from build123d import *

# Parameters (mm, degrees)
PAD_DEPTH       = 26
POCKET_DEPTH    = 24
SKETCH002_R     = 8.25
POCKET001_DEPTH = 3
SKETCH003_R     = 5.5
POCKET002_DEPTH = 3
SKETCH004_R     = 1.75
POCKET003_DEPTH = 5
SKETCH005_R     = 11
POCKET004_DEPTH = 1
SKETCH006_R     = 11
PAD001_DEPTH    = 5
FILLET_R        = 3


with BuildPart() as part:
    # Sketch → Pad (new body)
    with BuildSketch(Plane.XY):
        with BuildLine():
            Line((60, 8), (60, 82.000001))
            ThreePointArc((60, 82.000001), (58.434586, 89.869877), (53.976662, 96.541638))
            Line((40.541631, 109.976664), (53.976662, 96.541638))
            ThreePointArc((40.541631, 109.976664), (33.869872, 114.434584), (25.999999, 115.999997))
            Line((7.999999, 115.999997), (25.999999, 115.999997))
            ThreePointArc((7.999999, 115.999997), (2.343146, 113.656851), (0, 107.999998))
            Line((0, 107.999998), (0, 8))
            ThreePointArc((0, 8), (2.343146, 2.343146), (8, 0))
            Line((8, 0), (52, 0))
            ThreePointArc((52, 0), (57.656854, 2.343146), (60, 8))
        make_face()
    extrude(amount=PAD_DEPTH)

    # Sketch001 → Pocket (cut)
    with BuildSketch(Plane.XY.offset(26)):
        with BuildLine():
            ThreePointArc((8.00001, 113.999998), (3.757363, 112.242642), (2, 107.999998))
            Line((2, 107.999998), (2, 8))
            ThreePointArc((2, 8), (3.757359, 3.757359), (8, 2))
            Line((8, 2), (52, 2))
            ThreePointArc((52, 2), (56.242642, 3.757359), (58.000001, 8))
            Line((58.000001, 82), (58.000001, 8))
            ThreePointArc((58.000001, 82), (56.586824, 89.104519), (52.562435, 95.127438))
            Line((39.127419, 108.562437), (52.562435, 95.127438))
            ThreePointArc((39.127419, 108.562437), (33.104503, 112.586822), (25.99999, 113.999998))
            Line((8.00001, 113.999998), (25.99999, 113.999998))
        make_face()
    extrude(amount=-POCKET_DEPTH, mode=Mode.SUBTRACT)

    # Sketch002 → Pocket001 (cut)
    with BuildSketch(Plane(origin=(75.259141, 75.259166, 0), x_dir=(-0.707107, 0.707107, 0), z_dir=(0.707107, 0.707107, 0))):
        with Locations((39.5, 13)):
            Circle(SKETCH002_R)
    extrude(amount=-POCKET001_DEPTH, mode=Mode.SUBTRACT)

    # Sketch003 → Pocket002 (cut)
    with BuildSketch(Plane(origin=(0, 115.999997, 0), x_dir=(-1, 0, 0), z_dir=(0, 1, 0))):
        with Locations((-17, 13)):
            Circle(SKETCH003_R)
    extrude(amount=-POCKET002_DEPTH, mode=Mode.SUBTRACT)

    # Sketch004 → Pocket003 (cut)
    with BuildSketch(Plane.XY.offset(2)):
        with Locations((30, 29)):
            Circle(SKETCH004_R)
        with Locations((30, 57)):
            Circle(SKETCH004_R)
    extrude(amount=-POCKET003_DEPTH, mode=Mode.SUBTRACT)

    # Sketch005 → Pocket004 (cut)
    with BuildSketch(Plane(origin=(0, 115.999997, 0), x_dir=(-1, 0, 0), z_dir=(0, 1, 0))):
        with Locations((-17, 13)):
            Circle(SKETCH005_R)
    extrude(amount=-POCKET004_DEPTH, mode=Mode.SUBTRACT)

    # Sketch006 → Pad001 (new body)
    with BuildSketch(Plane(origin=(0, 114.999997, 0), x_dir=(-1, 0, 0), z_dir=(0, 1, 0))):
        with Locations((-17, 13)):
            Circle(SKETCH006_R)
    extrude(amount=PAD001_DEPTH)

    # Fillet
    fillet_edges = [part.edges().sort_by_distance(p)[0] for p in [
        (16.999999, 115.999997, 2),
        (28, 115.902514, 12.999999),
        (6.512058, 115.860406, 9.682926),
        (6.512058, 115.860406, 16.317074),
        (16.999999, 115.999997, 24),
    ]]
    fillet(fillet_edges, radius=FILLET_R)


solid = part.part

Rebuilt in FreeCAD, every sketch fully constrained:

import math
import FreeCAD as App
import Part
import Sketcher
from FreeCAD import Vector
Q = App.Units.Quantity


def edges_at(feature, points):
    """Names of the edges that pass closest to the given points."""
    edges = feature.Shape.Edges
    near = lambda p: min(range(len(edges)), key=lambda i: edges[i].distToShape(Part.Vertex(*p))[0])
    return sorted({f"Edge{near(p) + 1}" for p in points})

doc = App.newDocument("Part")
body = doc.addObject("PartDesign::Body", "Body")

# Sketch on XY plane
sketch1 = body.newObject("Sketcher::SketchObject", "Sketch")
sketch1.AttachmentSupport = (doc.getObject("XY_Plane"), [""])
sketch1.MapMode = "FlatFace"
sketch1.addGeometry(Part.LineSegment(Vector(60, 8, 0), Vector(60, 82.000001, 0)), False)
sketch1.addGeometry(Part.ArcOfCircle(Part.Circle(Vector(39.435011, 82.000003, 0), Vector(0, 0, 1), 20.564989), math.radians(-0.000005), math.radians(44.999969)), False)
sketch1.addGeometry(Part.LineSegment(Vector(53.976662, 96.541638, 0), Vector(40.541631, 109.976664, 0)), False)
sketch1.addGeometry(Part.ArcOfCircle(Part.Circle(Vector(26, 95.435005, 0), Vector(0, 0, 1), 20.564992), math.radians(45.000054), math.radians(90.000001)), False)
sketch1.addGeometry(Part.LineSegment(Vector(25.999999, 115.999997, 0), Vector(7.999999, 115.999997, 0)), False)
sketch1.addGeometry(Part.ArcOfCircle(Part.Circle(Vector(8.000001, 107.999996, 0), Vector(0, 0, 1), 8.000001), math.radians(90.000013), math.radians(179.999987)), False)
sketch1.addGeometry(Part.LineSegment(Vector(0, 107.999998, 0), Vector(0, 8, 0)), False)
sketch1.addGeometry(Part.ArcOfCircle(Part.Circle(Vector(8.000001, 8.000001, 0), Vector(0, 0, 1), 8.000001), math.radians(-179.999994), math.radians(-90.000006)), False)
sketch1.addGeometry(Part.LineSegment(Vector(8, 0, 0), Vector(52, 0, 0)), False)
sketch1.addGeometry(Part.ArcOfCircle(Part.Circle(Vector(51.999999, 8.000001, 0), Vector(0, 0, 1), 8.000001), math.radians(-89.999994), math.radians(-0.000006)), False)
sketch1.addConstraint(Sketcher.Constraint("Coincident", 0, 2, 1, 1))
sketch1.addConstraint(Sketcher.Constraint("Coincident", 1, 2, 2, 1))
sketch1.addConstraint(Sketcher.Constraint("Coincident", 2, 2, 3, 1))
sketch1.addConstraint(Sketcher.Constraint("Coincident", 3, 2, 4, 1))
sketch1.addConstraint(Sketcher.Constraint("Coincident", 4, 2, 5, 1))
sketch1.addConstraint(Sketcher.Constraint("Coincident", 5, 2, 6, 1))
sketch1.addConstraint(Sketcher.Constraint("Coincident", 6, 2, 7, 1))
sketch1.addConstraint(Sketcher.Constraint("Coincident", 7, 2, 8, 1))
sketch1.addConstraint(Sketcher.Constraint("Coincident", 8, 2, 9, 1))
sketch1.addConstraint(Sketcher.Constraint("Coincident", 9, 2, 0, 1))
sketch1.addConstraint(Sketcher.Constraint("Vertical", 0))
sketch1.addConstraint(Sketcher.Constraint("Horizontal", 4))
sketch1.addConstraint(Sketcher.Constraint("Vertical", 6))
sketch1.addConstraint(Sketcher.Constraint("Horizontal", 8))
sketch1.addConstraint(Sketcher.Constraint("PointOnObject", 5, 2, -2))
sketch1.addConstraint(Sketcher.Constraint("PointOnObject", 7, 2, -1))
sketch1.addConstraint(Sketcher.Constraint("Radius", 5, Q("8.000001 mm")))
sketch1.addConstraint(Sketcher.Constraint("Radius", 7, Q("8.000001 mm")))
sketch1.addConstraint(Sketcher.Constraint("Radius", 9, Q("8.000001 mm")))
sketch1.addConstraint(Sketcher.Constraint("DistanceX", 4, 2, 4, 1, Q("18 mm")))
sketch1.addConstraint(Sketcher.Constraint("DistanceX", 8, 1, 8, 2, Q("44 mm")))
sketch1.addConstraint(Sketcher.Constraint("DistanceY", 0, 1, 0, 2, Q("74.000001 mm")))
sketch1.addConstraint(Sketcher.Constraint("DistanceY", 6, 2, 6, 1, Q("99.999998 mm")))
sketch1.addConstraint(Sketcher.Constraint("Distance", 2, Q("19 mm")))
sketch1.addConstraint(Sketcher.Constraint("DistanceX", -1, 1, 3, 3, Q("26 mm")))
sketch1.addConstraint(Sketcher.Constraint("DistanceX", -1, 1, 9, 3, Q("51.999999 mm")))
sketch1.addConstraint(Sketcher.Constraint("DistanceY", -1, 1, 0, 2, Q("82.000001 mm")))
sketch1.addConstraint(Sketcher.Constraint("DistanceX", -1, 1, 3, 2, Q("25.999999 mm")))
sketch1.addConstraint(Sketcher.Constraint("DistanceY", -1, 1, 5, 2, Q("107.999998 mm")))
sketch1.addConstraint(Sketcher.Constraint("DistanceX", -1, 1, 7, 2, Q("8 mm")))
sketch1.addConstraint(Sketcher.Constraint("DistanceY", 7, 3, 1, 3, Q("74.000002 mm")))
sketch1.addConstraint(Sketcher.Constraint("DistanceY", 5, 2, 4, 2, Q("7.999999 mm")))
sketch1.addConstraint(Sketcher.Constraint("Radius", 1, Q("20.564989 mm")))
sketch1.addConstraint(Sketcher.Constraint("Radius", 3, Q("20.564992 mm")))
sketch1.addConstraint(Sketcher.Constraint("DistanceY", -1, 1, 1, 2, Q("96.541638 mm")))
pad1 = body.newObject("PartDesign::Pad", "Pad")
pad1.Profile = sketch1
pad1.Length = 26

# Sketch on XY plane
sketch2 = body.newObject("Sketcher::SketchObject", "Sketch001")
sketch2.AttachmentSupport = (doc.getObject("XY_Plane"), [""])
sketch2.MapMode = "FlatFace"
sketch2.AttachmentOffset = App.Placement(Vector(0, 0, 26), App.Rotation())
sketch2.addGeometry(Part.ArcOfCircle(Part.Circle(Vector(8.000001, 107.999997, 0), Vector(0, 0, 1), 6.000001), math.radians(89.999911), math.radians(179.999994)), False)
sketch2.addGeometry(Part.LineSegment(Vector(2, 107.999998, 0), Vector(2, 8, 0)), False)
sketch2.addGeometry(Part.ArcOfCircle(Part.Circle(Vector(7.999999, 7.999999, 0), Vector(0, 0, 1), 5.999999), math.radians(179.99999), math.radians(270.00001)), False)
sketch2.addGeometry(Part.LineSegment(Vector(8, 2, 0), Vector(52, 2, 0)), False)
sketch2.addGeometry(Part.ArcOfCircle(Part.Circle(Vector(52.000002, 7.999999, 0), Vector(0, 0, 1), 5.999999), math.radians(-90.00002), math.radians(0.00001)), False)
sketch2.addGeometry(Part.LineSegment(Vector(58.000001, 8, 0), Vector(58.000001, 82, 0)), False)
sketch2.addGeometry(Part.ArcOfCircle(Part.Circle(Vector(39.435013, 82.000002, 0), Vector(0, 0, 1), 18.564988), math.radians(-0.000007), math.radians(45.00003)), False)
sketch2.addGeometry(Part.LineSegment(Vector(52.562435, 95.127438, 0), Vector(39.127419, 108.562437, 0)), False)
sketch2.addGeometry(Part.ArcOfCircle(Part.Circle(Vector(25.999989, 95.435012, 0), Vector(0, 0, 1), 18.564986), math.radians(44.999989), math.radians(89.999997)), False)
sketch2.addGeometry(Part.LineSegment(Vector(25.99999, 113.999998, 0), Vector(8.00001, 113.999998, 0)), False)
sketch2.addConstraint(Sketcher.Constraint("Coincident", 0, 2, 1, 1))
sketch2.addConstraint(Sketcher.Constraint("Coincident", 1, 2, 2, 1))
sketch2.addConstraint(Sketcher.Constraint("Coincident", 2, 2, 3, 1))
sketch2.addConstraint(Sketcher.Constraint("Coincident", 3, 2, 4, 1))
sketch2.addConstraint(Sketcher.Constraint("Coincident", 4, 2, 5, 1))
sketch2.addConstraint(Sketcher.Constraint("Coincident", 5, 2, 6, 1))
sketch2.addConstraint(Sketcher.Constraint("Coincident", 6, 2, 7, 1))
sketch2.addConstraint(Sketcher.Constraint("Coincident", 7, 2, 8, 1))
sketch2.addConstraint(Sketcher.Constraint("Coincident", 8, 2, 9, 1))
sketch2.addConstraint(Sketcher.Constraint("Coincident", 9, 2, 0, 1))
sketch2.addConstraint(Sketcher.Constraint("Vertical", 1))
sketch2.addConstraint(Sketcher.Constraint("Horizontal", 3))
sketch2.addConstraint(Sketcher.Constraint("Vertical", 5))
sketch2.addConstraint(Sketcher.Constraint("Horizontal", 9))
sketch2.addConstraint(Sketcher.Constraint("Radius", 0, Q("6.000001 mm")))
sketch2.addConstraint(Sketcher.Constraint("Radius", 2, Q("5.999999 mm")))
sketch2.addConstraint(Sketcher.Constraint("Radius", 4, Q("5.999999 mm")))
sketch2.addConstraint(Sketcher.Constraint("DistanceX", 3, 1, 3, 2, Q("44 mm")))
sketch2.addConstraint(Sketcher.Constraint("DistanceY", 1, 2, 1, 1, Q("99.999998 mm")))
sketch2.addConstraint(Sketcher.Constraint("DistanceY", 5, 1, 5, 2, Q("74 mm")))
sketch2.addConstraint(Sketcher.Constraint("DistanceX", -1, 1, 0, 3, Q("8.000001 mm")))
sketch2.addConstraint(Sketcher.Constraint("DistanceY", -1, 1, 2, 3, Q("7.999999 mm")))
sketch2.addConstraint(Sketcher.Constraint("DistanceY", -1, 1, 0, 2, Q("107.999998 mm")))
sketch2.addConstraint(Sketcher.Constraint("DistanceX", -1, 1, 2, 2, Q("8 mm")))
sketch2.addConstraint(Sketcher.Constraint("DistanceX", -1, 1, 4, 2, Q("58.000001 mm")))
sketch2.addConstraint(Sketcher.Constraint("DistanceY", -1, 1, 4, 2, Q("8 mm")))
sketch2.addConstraint(Sketcher.Constraint("DistanceY", -1, 1, 9, 2, Q("113.999998 mm")))
sketch2.addConstraint(Sketcher.Constraint("Radius", 6, Q("18.564988 mm")))
sketch2.addConstraint(Sketcher.Constraint("Radius", 8, Q("18.564986 mm")))
sketch2.addConstraint(Sketcher.Constraint("DistanceY", 6, 2, 7, 2, Q("13.434999 mm")))
sketch2.addConstraint(Sketcher.Constraint("DistanceX", 9, 2, 9, 1, Q("17.99998 mm")))
sketch2.addConstraint(Sketcher.Constraint("Distance", 7, Q("18.99997 mm")))
sketch2.addConstraint(Sketcher.Constraint("DistanceX", -1, 1, 8, 3, Q("25.999989 mm")))
sketch2.addConstraint(Sketcher.Constraint("DistanceX", -1, 1, 7, 2, Q("39.127419 mm")))
sketch2.addConstraint(Sketcher.Constraint("DistanceX", -1, 1, 8, 2, Q("25.99999 mm")))
pocket1 = body.newObject("PartDesign::Pocket", "Pocket")
pocket1.Profile = sketch2
pocket1.Length = 24

# Sketch on an angled plane
sketch3 = body.newObject("Sketcher::SketchObject", "Sketch002")
sketch3.Placement = App.Placement(Vector(75.259141, 75.259166, 0), App.Rotation(Vector(-0.707106781, 0.707106781, 0), Vector(0, 0, 0.999999999), Vector(0.707106781, 0.707106781, 0), "ZXY"))
sketch3.addGeometry(Part.Circle(Vector(39.5, 13, 0), Vector(0, 0, 1), 8.25), False)
sketch3.addConstraint(Sketcher.Constraint("Diameter", 0, Q("16.5 mm")))
sketch3.addConstraint(Sketcher.Constraint("DistanceY", -1, 1, 0, 3, Q("13 mm")))
sketch3.addConstraint(Sketcher.Constraint("DistanceX", -1, 1, 0, 3, Q("39.5 mm")))
pocket2 = body.newObject("PartDesign::Pocket", "Pocket001")
pocket2.Profile = sketch3
pocket2.Length = 3

# Sketch on XZ plane
sketch4 = body.newObject("Sketcher::SketchObject", "Sketch003")
sketch4.AttachmentSupport = (doc.getObject("XZ_Plane"), [""])
sketch4.MapMode = "FlatFace"
sketch4.AttachmentOffset = App.Placement(Vector(0, 0, -115.999997), App.Rotation())
sketch4.addGeometry(Part.Circle(Vector(17, 13, 0), Vector(0, 0, 1), 5.5), False)
sketch4.addConstraint(Sketcher.Constraint("Diameter", 0, Q("11 mm")))
sketch4.addConstraint(Sketcher.Constraint("DistanceX", -1, 1, 0, 3, Q("17 mm")))
sketch4.addConstraint(Sketcher.Constraint("DistanceY", -1, 1, 0, 3, Q("13 mm")))
pocket3 = body.newObject("PartDesign::Pocket", "Pocket002")
pocket3.Profile = sketch4
pocket3.Length = 3
pocket3.Reversed = True

# Sketch on XY plane
sketch5 = body.newObject("Sketcher::SketchObject", "Sketch004")
sketch5.AttachmentSupport = (doc.getObject("XY_Plane"), [""])
sketch5.MapMode = "FlatFace"
sketch5.AttachmentOffset = App.Placement(Vector(0, 0, 2), App.Rotation())
sketch5.addGeometry(Part.Circle(Vector(30, 29, 0), Vector(0, 0, 1), 1.75), False)
sketch5.addGeometry(Part.Circle(Vector(30, 57, 0), Vector(0, 0, 1), 1.75), False)
sketch5.addConstraint(Sketcher.Constraint("Equal", 0, 1))
sketch5.addConstraint(Sketcher.Constraint("Vertical", 0, 3, 1, 3))
sketch5.addConstraint(Sketcher.Constraint("Diameter", 0, Q("3.5 mm")))
sketch5.addConstraint(Sketcher.Constraint("DistanceX", -1, 1, 0, 3, Q("30 mm")))
sketch5.addConstraint(Sketcher.Constraint("DistanceY", -1, 1, 0, 3, Q("29 mm")))
sketch5.addConstraint(Sketcher.Constraint("DistanceY", -1, 1, 1, 3, Q("57 mm")))
pocket4 = body.newObject("PartDesign::Pocket", "Pocket003")
pocket4.Profile = sketch5
pocket4.Length = 5

# Sketch on XZ plane
sketch6 = body.newObject("Sketcher::SketchObject", "Sketch005")
sketch6.AttachmentSupport = (doc.getObject("XZ_Plane"), [""])
sketch6.MapMode = "FlatFace"
sketch6.AttachmentOffset = App.Placement(Vector(0, 0, -115.999997), App.Rotation())
sketch6.addGeometry(Part.Circle(Vector(17, 13, 0), Vector(0, 0, 1), 11), False)
sketch6.addConstraint(Sketcher.Constraint("Diameter", 0, Q("22 mm")))
sketch6.addConstraint(Sketcher.Constraint("DistanceX", -1, 1, 0, 3, Q("17 mm")))
sketch6.addConstraint(Sketcher.Constraint("DistanceY", -1, 1, 0, 3, Q("13 mm")))
pocket5 = body.newObject("PartDesign::Pocket", "Pocket004")
pocket5.Profile = sketch6
pocket5.Length = 1
pocket5.Reversed = True

# Sketch on XZ plane
sketch7 = body.newObject("Sketcher::SketchObject", "Sketch006")
sketch7.AttachmentSupport = (doc.getObject("XZ_Plane"), [""])
sketch7.MapMode = "FlatFace"
sketch7.AttachmentOffset = App.Placement(Vector(0, 0, -114.999997), App.Rotation())
sketch7.addGeometry(Part.Circle(Vector(17, 13, 0), Vector(0, 0, 1), 11), False)
sketch7.addConstraint(Sketcher.Constraint("Diameter", 0, Q("22 mm")))
sketch7.addConstraint(Sketcher.Constraint("DistanceX", -1, 1, 0, 3, Q("17 mm")))
sketch7.addConstraint(Sketcher.Constraint("DistanceY", -1, 1, 0, 3, Q("13 mm")))
pad2 = body.newObject("PartDesign::Pad", "Pad001")
pad2.Profile = sketch7
pad2.Length = 5
pad2.Reversed = True
doc.recompute()

fillet = body.newObject("PartDesign::Fillet", "Fillet")
fillet.Base = (pad2, edges_at(pad2, [
    (17, 116, 2),
    (28, 115.903, 13),
    (6.512, 115.86, 9.683),
    (6.512, 115.86, 16.317),
    (17, 116, 24),
]))
fillet.Radius = 3

doc.recompute()
